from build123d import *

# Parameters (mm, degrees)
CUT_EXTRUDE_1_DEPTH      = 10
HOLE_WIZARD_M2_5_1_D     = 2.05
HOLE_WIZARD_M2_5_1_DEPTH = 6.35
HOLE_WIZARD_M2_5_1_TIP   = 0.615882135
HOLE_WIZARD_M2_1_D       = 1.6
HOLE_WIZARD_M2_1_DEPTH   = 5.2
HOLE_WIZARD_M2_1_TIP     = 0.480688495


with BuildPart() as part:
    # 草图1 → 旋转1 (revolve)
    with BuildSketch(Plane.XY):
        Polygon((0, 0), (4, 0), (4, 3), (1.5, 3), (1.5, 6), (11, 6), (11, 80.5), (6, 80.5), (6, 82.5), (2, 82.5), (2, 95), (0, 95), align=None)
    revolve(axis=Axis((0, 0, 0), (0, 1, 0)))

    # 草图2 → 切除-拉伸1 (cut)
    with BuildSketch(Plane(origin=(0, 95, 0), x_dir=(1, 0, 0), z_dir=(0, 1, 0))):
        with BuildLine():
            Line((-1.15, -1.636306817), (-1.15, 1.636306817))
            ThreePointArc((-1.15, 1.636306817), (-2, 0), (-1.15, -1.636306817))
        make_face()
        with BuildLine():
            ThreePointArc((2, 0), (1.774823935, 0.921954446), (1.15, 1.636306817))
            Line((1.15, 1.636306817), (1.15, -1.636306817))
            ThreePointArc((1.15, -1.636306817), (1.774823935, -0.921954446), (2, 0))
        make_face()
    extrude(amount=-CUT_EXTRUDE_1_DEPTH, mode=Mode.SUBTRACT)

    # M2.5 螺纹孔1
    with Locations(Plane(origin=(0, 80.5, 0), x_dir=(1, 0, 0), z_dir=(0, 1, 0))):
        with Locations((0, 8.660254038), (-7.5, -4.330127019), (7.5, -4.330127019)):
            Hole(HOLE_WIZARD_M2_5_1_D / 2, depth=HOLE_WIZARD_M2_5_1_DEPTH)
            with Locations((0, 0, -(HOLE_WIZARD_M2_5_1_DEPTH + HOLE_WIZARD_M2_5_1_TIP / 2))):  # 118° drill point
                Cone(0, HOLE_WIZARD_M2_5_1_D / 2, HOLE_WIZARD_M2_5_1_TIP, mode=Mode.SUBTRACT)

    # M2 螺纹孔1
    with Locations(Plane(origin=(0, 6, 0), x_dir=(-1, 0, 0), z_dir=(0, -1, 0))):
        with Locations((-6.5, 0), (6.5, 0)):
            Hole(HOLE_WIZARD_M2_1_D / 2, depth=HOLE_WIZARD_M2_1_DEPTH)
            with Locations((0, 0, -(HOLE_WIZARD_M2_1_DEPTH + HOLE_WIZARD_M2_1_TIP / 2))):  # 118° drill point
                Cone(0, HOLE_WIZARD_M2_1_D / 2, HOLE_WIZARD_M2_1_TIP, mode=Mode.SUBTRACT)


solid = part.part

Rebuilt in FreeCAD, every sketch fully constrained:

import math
import FreeCAD as App
import Part
import Sketcher


def add_polygon(sketch, points):
    """Adds a closed chain of lines whose ends are joined by coincident constraints."""
    first, n = sketch.GeometryCount, len(points)
    for a, b in zip(points, points[1:] + points[:1]):
        sketch.addGeometry(Part.LineSegment(App.Vector(*a, 0), App.Vector(*b, 0)), False)
    for i in range(n):
        sketch.addConstraint(Sketcher.Constraint("Coincident", first + i, 2, first + (i + 1) % n, 1))

doc = App.newDocument("Part")
body = doc.addObject("PartDesign::Body", "Body")

sketch1 = doc.addObject("Sketcher::SketchObject", "Sketch")
body.addObject(sketch1)
sketch1.AttachmentSupport = (doc.XY_Plane, [""])
sketch1.MapMode = "FlatFace"
add_polygon(sketch1, [(0, 0), (4, 0), (4, 3), (1.5, 3), (1.5, 6), (11, 6), (11, 80.5), (6, 80.5), (6, 82.5), (2, 82.5), (2, 95), (0, 95)])
sketch1.addConstraint(Sketcher.Constraint("Horizontal", 0))
sketch1.addConstraint(Sketcher.Constraint("Vertical", 1))
sketch1.addConstraint(Sketcher.Constraint("Horizontal", 2))
sketch1.addConstraint(Sketcher.Constraint("Vertical", 3))
sketch1.addConstraint(Sketcher.Constraint("Horizontal", 4))
sketch1.addConstraint(Sketcher.Constraint("Vertical", 5))
sketch1.addConstraint(Sketcher.Constraint("Horizontal", 6))
sketch1.addConstraint(Sketcher.Constraint("Vertical", 7))
sketch1.addConstraint(Sketcher.Constraint("Horizontal", 8))
sketch1.addConstraint(Sketcher.Constraint("Vertical", 9))
sketch1.addConstraint(Sketcher.Constraint("Horizontal", 10))
sketch1.addConstraint(Sketcher.Constraint("Vertical", 11))
sketch1.addConstraint(Sketcher.Constraint("Coincident", 11, 2, -1, 1))
sketch1.addConstraint(Sketcher.Constraint("Equal", 0, 8))
sketch1.addConstraint(Sketcher.Constraint("Equal", 1, 3))
sketch1.addConstraint(Sketcher.Constraint("Equal", 10, 7))
sketch1.addConstraint(Sketcher.Constraint("DistanceX", 0, 1, 0, 2, 4.0))
sketch1.addConstraint(Sketcher.Constraint("DistanceX", 6, 2, 6, 1, 5.0))
sketch1.addConstraint(Sketcher.Constraint("DistanceX", 10, 2, 10, 1, 2.0))
sketch1.addConstraint(Sketcher.Constraint("DistanceY", 1, 1, 1, 2, 3.0))
sketch1.addConstraint(Sketcher.Constraint("DistanceY", 11, 2, 11, 1, 95.0))
sketch1.addConstraint(Sketcher.Constraint("DistanceX", 2, 2, 2, 1, 2.5))
sketch1.addConstraint(Sketcher.Constraint("DistanceY", 5, 1, 5, 2, 74.5))
revolution = doc.addObject("PartDesign::Revolution", "Revolution")
body.addObject(revolution)
revolution.Profile = sketch1
revolution.ReferenceAxis = (sketch1, ["V_Axis"])
revolution.Angle = 360

sketch2 = doc.addObject("Sketcher::SketchObject", "Sketch001")
body.addObject(sketch2)
sketch2.AttachmentSupport = (doc.XZ_Plane, [""])
sketch2.MapMode = "FlatFace"
sketch2.AttachmentOffset = App.Placement(App.Vector(0, 0, -95), App.Rotation())
sketch2.addGeometry(Part.LineSegment(App.Vector(-1.1, 1.6, 0), App.Vector(-1.1, -1.6, 0)), False)
sketch2.addGeometry(Part.ArcOfCircle(Part.Circle(App.Vector(0, 0, 0), App.Vector(0, 0, 1), 2), math.radians(125), math.radians(235)), False)
sketch2.addGeometry(Part.ArcOfCircle(Part.Circle(App.Vector(0, 0, 0), App.Vector(0, 0, 1), 2), math.radians(-55), math.radians(0)), False)
sketch2.addGeometry(Part.LineSegment(App.Vector(1.1, -1.6, 0), App.Vector(1.1, 1.6, 0)), False)
sketch2.addGeometry(Part.ArcOfCircle(Part.Circle(App.Vector(0, 0, 0), App.Vector(0, 0, 1), 2), math.radians(0), math.radians(55)), False)
sketch2.addConstraint(Sketcher.Constraint("Coincident", 0, 1, 1, 1))
sketch2.addConstraint(Sketcher.Constraint("Coincident", 1, 2, 0, 2))
sketch2.addConstraint(Sketcher.Constraint("Coincident", 2, 1, 3, 1))
sketch2.addConstraint(Sketcher.Constraint("Coincident", 3, 2, 4, 2))
sketch2.addConstraint(Sketcher.Constraint("Tangent", 4, 1, 2, 2))
sketch2.addConstraint(Sketcher.Constraint("Vertical", 0))
sketch2.addConstraint(Sketcher.Constraint("Vertical", 3))
sketch2.addConstraint(Sketcher.Constraint("Coincident", 1, 3, -1, 1))
sketch2.addConstraint(Sketcher.Constraint("Coincident", 2, 3, -1, 1))
sketch2.addConstraint(Sketcher.Constraint("Equal", 1, 2))
sketch2.addConstraint(Sketcher.Constraint("Equal", 2, 4))
sketch2.addConstraint(Sketcher.Constraint("PointOnObject", 4, 1, -1))
sketch2.addConstraint(Sketcher.Constraint("Horizontal", 1, 2, 2, 1))
sketch2.addConstraint(Sketcher.Constraint("Radius", 1, 2.0))
sketch2.addConstraint(Sketcher.Constraint("DistanceX", 1, 2, 2, 1, 2.3))
pocket1 = doc.addObject("PartDesign::Pocket", "Pocket")
body.addObject(pocket1)
pocket1.Profile = sketch2
pocket1.Length = 10
pocket1.Reversed = True

sketch3 = doc.addObject("Sketcher::SketchObject", "Sketch002")
body.addObject(sketch3)
sketch3.AttachmentSupport = (doc.XZ_Plane, [""])
sketch3.MapMode = "FlatFace"
sketch3.AttachmentOffset = App.Placement(App.Vector(0, 0, -80.5), App.Rotation())
sketch3.addGeometry(Part.Circle(App.Vector(0, -8.7, 0), App.Vector(0, 0, 1), 1), False)
sketch3.addGeometry(Part.Circle(App.Vector(-7.5, 4.3, 0), App.Vector(0, 0, 1), 1), False)
sketch3.addGeometry(Part.Circle(App.Vector(7.5, 4.3, 0), App.Vector(0, 0, 1), 1), False)
sketch3.addConstraint(Sketcher.Constraint("Equal", 0, 1))
sketch3.addConstraint(Sketcher.Constraint("Equal", 1, 2))
sketch3.addConstraint(Sketcher.Constraint("Symmetric", 1, 3, 2, 3, -2))
sketch3.addConstraint(Sketcher.Constraint("PointOnObject", 0, 3, -2))
sketch3.addConstraint(Sketcher.Constraint("Diameter", 0, 2.05))
sketch3.addConstraint(Sketcher.Constraint("DistanceX", 1, 3, 2, 3, 15.0))
sketch3.addConstraint(Sketcher.Constraint("DistanceY", 0, 3, 1, 3, 12.990381))
sketch3.addConstraint(Sketcher.Constraint("DistanceY", 0, 3, -1, 1, 8.660254))
doc.recompute()
hole = doc.addObject("PartDesign::Hole", "Hole")
body.addObject(hole)
hole.Profile = sketch3
hole.ThreadType = "None"
hole.Diameter = 2.05
hole.DepthType = "Dimension"
hole.Depth = 6.35
hole.DrillPoint = "Angled"
hole.DrillPointAngle = 118
hole.Reversed = True

sketch4 = doc.addObject("Sketcher::SketchObject", "Sketch003")
body.addObject(sketch4)
sketch4.AttachmentSupport = (doc.XZ_Plane, [""])
sketch4.MapMode = "FlatFace"
sketch4.AttachmentOffset = App.Placement(App.Vector(0, 0, -6), App.Rotation())
sketch4.addGeometry(Part.Circle(App.Vector(6.5, 0, 0), App.Vector(0, 0, 1), 0.8), False)
sketch4.addGeometry(Part.Circle(App.Vector(-6.5, 0, 0), App.Vector(0, 0, 1), 0.8), False)
sketch4.addConstraint(Sketcher.Constraint("Equal", 0, 1))
sketch4.addConstraint(Sketcher.Constraint("Symmetric", 0, 3, 1, 3, -1, 1))
sketch4.addConstraint(Sketcher.Constraint("PointOnObject", 0, 3, -1))
sketch4.addConstraint(Sketcher.Constraint("Diameter", 0, 1.6))
sketch4.addConstraint(Sketcher.Constraint("DistanceX", 1, 3, 0, 3, 13.0))
doc.recompute()
hole2 = doc.addObject("PartDesign::Hole", "Hole001")
body.addObject(hole2)
hole2.Profile = sketch4
hole2.ThreadType = "None"
hole2.Diameter = 1.6
hole2.DepthType = "Dimension"
hole2.Depth = 5.2
hole2.DrillPoint = "Angled"
hole2.DrillPointAngle = 118

doc.recompute()
